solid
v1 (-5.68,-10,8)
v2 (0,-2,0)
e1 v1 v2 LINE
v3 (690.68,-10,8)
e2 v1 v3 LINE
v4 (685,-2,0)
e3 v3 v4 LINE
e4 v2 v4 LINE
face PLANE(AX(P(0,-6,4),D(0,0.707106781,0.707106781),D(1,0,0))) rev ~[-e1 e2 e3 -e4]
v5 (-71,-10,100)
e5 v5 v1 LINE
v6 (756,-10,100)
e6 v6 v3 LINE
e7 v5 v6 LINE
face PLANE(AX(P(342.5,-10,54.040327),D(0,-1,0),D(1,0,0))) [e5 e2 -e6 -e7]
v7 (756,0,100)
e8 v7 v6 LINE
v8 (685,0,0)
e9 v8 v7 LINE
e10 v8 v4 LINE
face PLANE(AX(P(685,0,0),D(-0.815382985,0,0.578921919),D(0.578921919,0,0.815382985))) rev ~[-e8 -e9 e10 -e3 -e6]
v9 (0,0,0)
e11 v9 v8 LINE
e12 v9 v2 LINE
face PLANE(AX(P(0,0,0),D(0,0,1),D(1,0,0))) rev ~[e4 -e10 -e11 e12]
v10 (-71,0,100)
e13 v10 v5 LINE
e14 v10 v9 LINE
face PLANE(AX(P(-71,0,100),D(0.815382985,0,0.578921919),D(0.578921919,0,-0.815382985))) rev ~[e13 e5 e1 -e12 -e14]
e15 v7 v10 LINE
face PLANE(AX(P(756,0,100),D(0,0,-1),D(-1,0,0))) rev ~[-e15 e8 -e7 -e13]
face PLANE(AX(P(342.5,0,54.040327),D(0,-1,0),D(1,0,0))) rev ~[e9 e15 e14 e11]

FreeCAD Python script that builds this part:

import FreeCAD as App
import Part
import Sketcher

V = App.Vector
Q = App.Units.Quantity


def edges_at(feature, points):
    """Names of the edges that pass closest to the given points."""
    edges = feature.Shape.Edges
    near = lambda p: min(range(len(edges)), key=lambda i: edges[i].distToShape(Part.Vertex(*p))[0])
    return sorted({f"Edge{near(p) + 1}" for p in points})


def add_polygon(sketch, points):
    """Adds a closed chain of lines whose ends are joined by coincident constraints."""
    first, n = sketch.GeometryCount, len(points)
    for a, b in zip(points, points[1:] + points[:1]):
        sketch.addGeometry(Part.LineSegment(App.Vector(*a, 0), App.Vector(*b, 0)), False)
    for i in range(n):
        sketch.addConstraint(Sketcher.Constraint("Coincident", first + i, 2, first + (i + 1) % n, 1))

doc = App.newDocument("Part")
params = doc.addObject("Spreadsheet::Sheet", "Params")
for row, (alias, value) in enumerate([
    ("sketch1_width", "685 mm"),
    ("sketch1_width2", "827 mm"),
    ("pad1_length", "10 mm"),
    ("sketch2_width", "10 mm"),
    ("chamfer_size", "8 mm"),
    ("chamfer_size2", "8 mm"),
], start=1):
    params.set(f"A{row}", alias)
    params.set(f"B{row}", "=" + value)
    params.setAlias(f"B{row}", alias)

body = doc.addObject("PartDesign::Body", "Body")

sketch1 = body.newObject("Sketcher::SketchObject", "Sketch")
sketch1.AttachmentSupport = (doc.getObject("XZ_Plane"), [""])
sketch1.MapMode = "FlatFace"
add_polygon(sketch1, [(-71, 100), (0, 0), (685, 0), (756, 100)])
sketch1.addConstraint(Sketcher.Constraint("Horizontal", 1))
sketch1.addConstraint(Sketcher.Constraint("Horizontal", 3))
sketch1.addConstraint(Sketcher.Constraint("Coincident", 0, 2, -1, 1))
sketch1.addConstraint(Sketcher.Constraint("Equal", 0, 2))
sketch1.addConstraint(Sketcher.Constraint("DistanceX", 1, 1, 1, 2, Q("685 mm")))
sketch1.addConstraint(Sketcher.Constraint("DistanceX", 3, 2, 3, 1, Q("827 mm")))
sketch1.addConstraint(Sketcher.Constraint("DistanceY", -1, 1, 2, 2, Q("100 mm")))
sketch1.setExpression("Constraints[8]", "Params.sketch1_width")
sketch1.setExpression("Constraints[9]", "Params.sketch1_width2")
pad1 = body.newObject("PartDesign::Pad", "Pad")
pad1.Profile = sketch1
pad1.setExpression("Length", "Params.pad1_length")

sketch2 = body.newObject("Sketcher::SketchObject", "Sketch001")
sketch2.Placement = App.Placement(V(455.421847, 0, -323.349511), App.Rotation(V(0, 1, 0), V(0.578921966, 0, 0.815382952), V(0.815382952, 0, -0.578921966), "ZXY"))
add_polygon(sketch2, [(-10, 519.2), (0, 519.2), (0, 523.9), (-15.2, 523.9), (-15.2, 510.4), (-10, 513.4)])
sketch2.addConstraint(Sketcher.Constraint("Horizontal", 0))
sketch2.addConstraint(Sketcher.Constraint("Vertical", 1))
sketch2.addConstraint(Sketcher.Constraint("Horizontal", 2))
sketch2.addConstraint(Sketcher.Constraint("Vertical", 3))
sketch2.addConstraint(Sketcher.Constraint("Vertical", 5))
sketch2.addConstraint(Sketcher.Constraint("PointOnObject", 0, 2, -2))
sketch2.addConstraint(Sketcher.Constraint("DistanceX", 0, 1, 0, 2, Q("10 mm")))
sketch2.addConstraint(Sketcher.Constraint("Angle", 4, Q("30.000003 deg")))
sketch2.addConstraint(Sketcher.Constraint("DistanceY", 1, 1, 1, 2, Q("4.724101 mm")))
sketch2.addConstraint(Sketcher.Constraint("DistanceX", 2, 2, 2, 1, Q("15.178904 mm")))
sketch2.addConstraint(Sketcher.Constraint("DistanceY", 3, 2, 3, 1, Q("13.487645 mm")))
sketch2.addConstraint(Sketcher.Constraint("DistanceY", -1, 1, 0, 2, Q("519.20327 mm")))
sketch2.setExpression("Constraints[12]", "Params.sketch2_width")
pocket1 = body.newObject("PartDesign::Pocket", "Pocket")
pocket1.Profile = sketch2
pocket1.Type = "ThroughAll"

sketch3 = body.newObject("Sketcher::SketchObject", "Sketch002")
sketch3.Placement = App.Placement(V(455.421847, 0, -323.349511), App.Rotation(V(0, 1, 0), V(0.578921966, 0, 0.815382952), V(0.815382952, 0, -0.578921966), "ZXY"))
add_polygon(sketch3, [(-197, 210), (-211, 196), (-197, 196)])
sketch3.addConstraint(Sketcher.Constraint("Horizontal", 1))
sketch3.addConstraint(Sketcher.Constraint("Vertical", 2))
sketch3.addConstraint(Sketcher.Constraint("Equal", 1, 2))
sketch3.addConstraint(Sketcher.Constraint("DistanceX", 1, 1, 1, 2, Q("13.957119 mm")))
sketch3.addConstraint(Sketcher.Constraint("DistanceY", -1, 1, 0, 2, Q("195.689339 mm")))
sketch3.addConstraint(Sketcher.Constraint("DistanceX", 0, 2, -1, 1, Q("210.872175 mm")))
pocket2 = body.newObject("PartDesign::Pocket", "Pocket001")
pocket2.Profile = sketch3
pocket2.Type = "ThroughAll"
doc.recompute()

chamfer = body.newObject("PartDesign::Chamfer", "Chamfer")
chamfer.Base = (pocket2, edges_at(pocket2, [(342.5, -10, 0)]))
chamfer.ChamferType = "Two distances"
chamfer.setExpression("Size", "Params.chamfer_size")
chamfer.setExpression("Size2", "Params.chamfer_size2")

doc.recompute()
